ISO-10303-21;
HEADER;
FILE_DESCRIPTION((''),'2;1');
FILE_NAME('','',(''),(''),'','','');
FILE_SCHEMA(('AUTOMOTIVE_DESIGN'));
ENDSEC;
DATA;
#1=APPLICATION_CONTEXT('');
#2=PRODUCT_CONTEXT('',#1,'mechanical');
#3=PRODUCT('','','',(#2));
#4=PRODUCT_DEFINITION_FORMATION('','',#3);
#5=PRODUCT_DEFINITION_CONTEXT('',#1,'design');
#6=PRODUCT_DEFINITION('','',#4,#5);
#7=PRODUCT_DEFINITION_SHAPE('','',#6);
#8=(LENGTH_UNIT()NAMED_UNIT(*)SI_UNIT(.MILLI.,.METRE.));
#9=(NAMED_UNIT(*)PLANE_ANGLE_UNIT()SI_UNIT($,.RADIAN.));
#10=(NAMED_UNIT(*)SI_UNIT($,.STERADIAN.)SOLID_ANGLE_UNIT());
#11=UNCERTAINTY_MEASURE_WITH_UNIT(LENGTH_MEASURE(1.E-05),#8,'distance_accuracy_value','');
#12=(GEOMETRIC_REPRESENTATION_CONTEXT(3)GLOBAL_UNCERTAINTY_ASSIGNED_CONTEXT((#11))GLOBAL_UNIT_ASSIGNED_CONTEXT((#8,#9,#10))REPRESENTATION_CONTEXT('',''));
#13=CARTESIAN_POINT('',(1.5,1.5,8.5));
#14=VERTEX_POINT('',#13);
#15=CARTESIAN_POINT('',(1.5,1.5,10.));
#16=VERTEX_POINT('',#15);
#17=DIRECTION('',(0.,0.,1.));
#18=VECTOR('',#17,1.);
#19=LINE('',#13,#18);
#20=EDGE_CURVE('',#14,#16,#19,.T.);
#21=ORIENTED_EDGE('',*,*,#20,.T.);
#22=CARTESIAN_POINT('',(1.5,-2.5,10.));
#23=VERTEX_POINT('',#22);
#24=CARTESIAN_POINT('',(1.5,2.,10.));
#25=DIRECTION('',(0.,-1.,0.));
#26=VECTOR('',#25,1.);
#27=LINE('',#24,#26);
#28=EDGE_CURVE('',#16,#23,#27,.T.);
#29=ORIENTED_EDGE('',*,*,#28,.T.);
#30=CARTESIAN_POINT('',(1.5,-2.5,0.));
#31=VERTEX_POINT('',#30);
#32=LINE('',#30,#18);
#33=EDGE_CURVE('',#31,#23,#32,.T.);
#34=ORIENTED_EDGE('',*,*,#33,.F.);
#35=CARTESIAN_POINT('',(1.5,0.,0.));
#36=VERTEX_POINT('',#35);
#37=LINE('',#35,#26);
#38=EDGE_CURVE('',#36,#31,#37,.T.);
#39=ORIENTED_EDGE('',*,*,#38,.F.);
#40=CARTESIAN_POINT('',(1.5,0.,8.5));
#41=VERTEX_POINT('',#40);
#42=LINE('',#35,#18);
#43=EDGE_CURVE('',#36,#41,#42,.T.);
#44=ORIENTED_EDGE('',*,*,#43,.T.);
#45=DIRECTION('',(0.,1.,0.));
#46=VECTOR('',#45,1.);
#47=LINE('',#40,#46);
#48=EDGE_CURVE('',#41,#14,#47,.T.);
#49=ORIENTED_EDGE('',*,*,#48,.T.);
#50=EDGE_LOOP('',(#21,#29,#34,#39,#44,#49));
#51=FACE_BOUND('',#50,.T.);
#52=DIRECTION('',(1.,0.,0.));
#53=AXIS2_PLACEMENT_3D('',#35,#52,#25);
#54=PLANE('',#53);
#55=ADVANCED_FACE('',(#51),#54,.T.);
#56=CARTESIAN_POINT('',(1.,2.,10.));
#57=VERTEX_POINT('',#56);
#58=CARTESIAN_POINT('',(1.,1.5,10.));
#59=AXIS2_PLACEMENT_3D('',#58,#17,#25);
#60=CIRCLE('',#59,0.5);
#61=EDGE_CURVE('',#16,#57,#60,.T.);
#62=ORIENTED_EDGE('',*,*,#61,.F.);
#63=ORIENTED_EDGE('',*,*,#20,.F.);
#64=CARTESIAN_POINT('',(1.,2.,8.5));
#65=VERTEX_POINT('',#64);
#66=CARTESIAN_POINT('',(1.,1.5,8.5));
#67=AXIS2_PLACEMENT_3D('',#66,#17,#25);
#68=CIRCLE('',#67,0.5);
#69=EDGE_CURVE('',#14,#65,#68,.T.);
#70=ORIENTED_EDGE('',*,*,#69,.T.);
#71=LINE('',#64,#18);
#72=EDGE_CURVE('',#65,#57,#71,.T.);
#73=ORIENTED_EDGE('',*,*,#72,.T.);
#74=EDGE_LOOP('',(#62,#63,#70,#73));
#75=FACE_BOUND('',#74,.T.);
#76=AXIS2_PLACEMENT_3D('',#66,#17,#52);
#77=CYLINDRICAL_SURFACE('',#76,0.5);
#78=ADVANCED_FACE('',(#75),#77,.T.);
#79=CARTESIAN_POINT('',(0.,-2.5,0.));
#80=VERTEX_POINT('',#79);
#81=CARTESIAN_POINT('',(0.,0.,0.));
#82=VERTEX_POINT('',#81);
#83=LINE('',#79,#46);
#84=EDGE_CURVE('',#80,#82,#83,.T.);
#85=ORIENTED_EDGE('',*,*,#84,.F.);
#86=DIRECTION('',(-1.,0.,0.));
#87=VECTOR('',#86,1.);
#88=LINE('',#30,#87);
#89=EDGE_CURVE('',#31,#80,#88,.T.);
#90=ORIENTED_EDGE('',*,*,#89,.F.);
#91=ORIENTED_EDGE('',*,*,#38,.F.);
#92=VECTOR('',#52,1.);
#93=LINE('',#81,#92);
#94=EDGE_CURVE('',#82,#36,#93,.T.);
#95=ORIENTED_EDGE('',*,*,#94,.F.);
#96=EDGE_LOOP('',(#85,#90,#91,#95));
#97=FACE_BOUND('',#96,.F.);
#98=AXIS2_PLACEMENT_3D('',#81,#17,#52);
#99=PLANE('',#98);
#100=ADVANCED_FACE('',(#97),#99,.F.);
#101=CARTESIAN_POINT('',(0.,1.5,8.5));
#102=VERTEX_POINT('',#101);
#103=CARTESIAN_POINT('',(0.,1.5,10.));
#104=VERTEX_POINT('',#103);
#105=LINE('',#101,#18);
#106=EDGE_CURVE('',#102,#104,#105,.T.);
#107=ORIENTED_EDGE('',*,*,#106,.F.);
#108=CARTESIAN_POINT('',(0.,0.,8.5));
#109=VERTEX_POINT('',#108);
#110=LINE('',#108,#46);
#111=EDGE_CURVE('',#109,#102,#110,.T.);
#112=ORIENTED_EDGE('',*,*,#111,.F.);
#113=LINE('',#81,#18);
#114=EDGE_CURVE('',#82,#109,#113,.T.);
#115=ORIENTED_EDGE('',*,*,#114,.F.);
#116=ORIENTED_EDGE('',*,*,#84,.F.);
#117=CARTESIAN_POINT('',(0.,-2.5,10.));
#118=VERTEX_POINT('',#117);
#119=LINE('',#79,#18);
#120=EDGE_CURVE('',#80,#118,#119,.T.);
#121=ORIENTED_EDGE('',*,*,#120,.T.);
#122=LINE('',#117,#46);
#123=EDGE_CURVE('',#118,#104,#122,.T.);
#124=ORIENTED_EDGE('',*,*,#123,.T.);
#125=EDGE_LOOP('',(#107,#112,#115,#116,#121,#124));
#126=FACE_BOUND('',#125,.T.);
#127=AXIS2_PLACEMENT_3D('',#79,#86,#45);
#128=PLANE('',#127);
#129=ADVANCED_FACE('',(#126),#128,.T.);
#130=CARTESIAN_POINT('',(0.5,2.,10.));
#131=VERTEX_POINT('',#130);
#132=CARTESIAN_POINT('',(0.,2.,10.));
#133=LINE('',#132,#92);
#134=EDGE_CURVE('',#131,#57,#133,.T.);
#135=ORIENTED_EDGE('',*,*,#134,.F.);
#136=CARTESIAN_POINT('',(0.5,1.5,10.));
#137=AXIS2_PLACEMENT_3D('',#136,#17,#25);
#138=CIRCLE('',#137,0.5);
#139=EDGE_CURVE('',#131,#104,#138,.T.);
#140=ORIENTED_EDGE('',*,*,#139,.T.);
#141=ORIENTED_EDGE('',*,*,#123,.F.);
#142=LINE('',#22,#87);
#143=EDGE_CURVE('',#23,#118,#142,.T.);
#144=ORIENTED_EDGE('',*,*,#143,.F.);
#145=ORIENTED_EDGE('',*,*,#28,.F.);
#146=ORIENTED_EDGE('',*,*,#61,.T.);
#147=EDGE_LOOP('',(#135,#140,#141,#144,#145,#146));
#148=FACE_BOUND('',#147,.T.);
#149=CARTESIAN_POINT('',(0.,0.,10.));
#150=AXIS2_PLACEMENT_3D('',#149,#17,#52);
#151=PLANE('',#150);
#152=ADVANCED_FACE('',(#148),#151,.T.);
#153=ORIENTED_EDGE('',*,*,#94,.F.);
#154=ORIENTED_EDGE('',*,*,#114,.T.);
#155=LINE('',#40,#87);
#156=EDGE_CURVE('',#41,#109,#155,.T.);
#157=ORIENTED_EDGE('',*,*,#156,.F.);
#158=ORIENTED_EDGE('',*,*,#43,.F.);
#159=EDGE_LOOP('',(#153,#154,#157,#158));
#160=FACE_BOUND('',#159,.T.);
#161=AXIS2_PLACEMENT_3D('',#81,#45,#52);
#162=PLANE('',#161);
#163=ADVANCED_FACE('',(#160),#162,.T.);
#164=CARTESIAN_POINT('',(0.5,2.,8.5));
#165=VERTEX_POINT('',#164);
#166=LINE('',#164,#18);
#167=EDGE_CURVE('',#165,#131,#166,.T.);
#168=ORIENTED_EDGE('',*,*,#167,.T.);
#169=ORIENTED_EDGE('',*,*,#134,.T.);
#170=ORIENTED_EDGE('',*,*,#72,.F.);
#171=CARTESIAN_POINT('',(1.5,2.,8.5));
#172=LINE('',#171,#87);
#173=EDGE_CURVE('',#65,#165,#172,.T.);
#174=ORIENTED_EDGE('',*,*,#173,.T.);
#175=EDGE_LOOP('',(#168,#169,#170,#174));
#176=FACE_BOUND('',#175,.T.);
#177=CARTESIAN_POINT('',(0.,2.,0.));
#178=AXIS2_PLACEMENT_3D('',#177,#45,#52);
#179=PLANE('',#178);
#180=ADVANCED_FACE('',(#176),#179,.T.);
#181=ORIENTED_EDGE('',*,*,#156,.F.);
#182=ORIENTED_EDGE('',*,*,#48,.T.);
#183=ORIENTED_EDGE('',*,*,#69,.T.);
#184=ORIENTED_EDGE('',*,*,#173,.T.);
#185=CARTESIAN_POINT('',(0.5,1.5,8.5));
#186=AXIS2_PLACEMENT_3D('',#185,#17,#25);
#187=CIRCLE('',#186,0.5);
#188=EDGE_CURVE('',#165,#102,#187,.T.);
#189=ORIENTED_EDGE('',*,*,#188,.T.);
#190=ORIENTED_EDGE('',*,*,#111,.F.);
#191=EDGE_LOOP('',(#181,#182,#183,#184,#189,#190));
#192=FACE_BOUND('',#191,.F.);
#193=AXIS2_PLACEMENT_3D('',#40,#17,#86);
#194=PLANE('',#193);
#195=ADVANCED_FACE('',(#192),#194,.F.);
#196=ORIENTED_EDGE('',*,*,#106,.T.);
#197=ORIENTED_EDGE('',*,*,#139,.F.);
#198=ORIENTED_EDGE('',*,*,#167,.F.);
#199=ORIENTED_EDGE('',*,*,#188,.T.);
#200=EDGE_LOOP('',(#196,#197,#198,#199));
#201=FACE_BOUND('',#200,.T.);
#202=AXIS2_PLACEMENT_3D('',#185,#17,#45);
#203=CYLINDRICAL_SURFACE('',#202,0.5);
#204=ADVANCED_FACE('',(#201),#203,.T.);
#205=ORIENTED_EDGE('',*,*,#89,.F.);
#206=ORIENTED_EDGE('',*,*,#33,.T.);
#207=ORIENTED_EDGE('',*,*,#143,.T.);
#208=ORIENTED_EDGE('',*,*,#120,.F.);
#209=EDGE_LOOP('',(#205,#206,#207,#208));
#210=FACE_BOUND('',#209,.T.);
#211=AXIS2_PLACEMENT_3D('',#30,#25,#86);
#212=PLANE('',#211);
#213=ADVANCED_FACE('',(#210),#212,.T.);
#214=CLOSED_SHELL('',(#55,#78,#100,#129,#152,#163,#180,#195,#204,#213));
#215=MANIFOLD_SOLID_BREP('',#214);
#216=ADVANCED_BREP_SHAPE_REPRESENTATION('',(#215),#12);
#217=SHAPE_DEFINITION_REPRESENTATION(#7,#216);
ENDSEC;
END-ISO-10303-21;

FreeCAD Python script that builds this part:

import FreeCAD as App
import Part
import Sketcher

V = App.Vector


def edges_at(feature, points):
    """Names of the edges that pass closest to the given points."""
    edges = feature.Shape.Edges
    near = lambda p: min(range(len(edges)), key=lambda i: edges[i].distToShape(Part.Vertex(*p))[0])
    return sorted({f"Edge{near(p) + 1}" for p in points})


def add_polygon(sketch, points):
    """Adds a closed chain of lines whose ends are joined by coincident constraints."""
    first, n = sketch.GeometryCount, len(points)
    for a, b in zip(points, points[1:] + points[:1]):
        sketch.addGeometry(Part.LineSegment(App.Vector(*a, 0), App.Vector(*b, 0)), False)
    for i in range(n):
        sketch.addConstraint(Sketcher.Constraint("Coincident", first + i, 2, first + (i + 1) % n, 1))

doc = App.newDocument("Part")
body = doc.addObject("PartDesign::Body", "Body")

sketch1 = doc.addObject("Sketcher::SketchObject", "Sketch")
body.addObject(sketch1)
sketch1.AttachmentSupport = (doc.XY_Plane, [""])
sketch1.MapMode = "FlatFace"
add_polygon(sketch1, [(1.5, 0), (0, 0), (0, -2.5), (1.5, -2.5)])
sketch1.addConstraint(Sketcher.Constraint("Horizontal", 0))
sketch1.addConstraint(Sketcher.Constraint("Vertical", 1))
sketch1.addConstraint(Sketcher.Constraint("Horizontal", 2))
sketch1.addConstraint(Sketcher.Constraint("Vertical", 3))
sketch1.addConstraint(Sketcher.Constraint("Coincident", 0, 2, -1, 1))
sketch1.addConstraint(Sketcher.Constraint("DistanceX", 0, 2, 0, 1, 1.5))
sketch1.addConstraint(Sketcher.Constraint("DistanceY", 1, 2, 1, 1, 2.5))
pad1 = doc.addObject("PartDesign::Pad", "Pad")
body.addObject(pad1)
pad1.Profile = sketch1
pad1.Length = 10

sketch2 = doc.addObject("Sketcher::SketchObject", "Sketch001")
body.addObject(sketch2)
sketch2.AttachmentSupport = (doc.XZ_Plane, [""])
sketch2.MapMode = "FlatFace"
add_polygon(sketch2, [(0, 8.5), (0, 10), (1.5, 10), (1.5, 8.5)])
sketch2.addConstraint(Sketcher.Constraint("Vertical", 0))
sketch2.addConstraint(Sketcher.Constraint("Horizontal", 1))
sketch2.addConstraint(Sketcher.Constraint("Vertical", 2))
sketch2.addConstraint(Sketcher.Constraint("Horizontal", 3))
sketch2.addConstraint(Sketcher.Constraint("PointOnObject", 0, 2, -2))
sketch2.addConstraint(Sketcher.Constraint("Equal", 3, 0))
sketch2.addConstraint(Sketcher.Constraint("DistanceX", 1, 1, 1, 2, 1.5))
sketch2.addConstraint(Sketcher.Constraint("DistanceY", -1, 1, 0, 2, 10.0))
pad2 = doc.addObject("PartDesign::Pad", "Pad001")
body.addObject(pad2)
pad2.Profile = sketch2
pad2.Length = 2
pad2.Reversed = True
doc.recompute()

fillet = doc.addObject("PartDesign::Fillet", "Fillet")
body.addObject(fillet)
fillet.Base = (pad2, edges_at(pad2, [(1.5, 2, 9.25)]))
fillet.Radius = 0.5
doc.recompute()

fillet2 = doc.addObject("PartDesign::Fillet", "Fillet001")
body.addObject(fillet2)
fillet2.Base = (fillet, edges_at(fillet, [(0, 2, 9.25)]))
fillet2.Radius = 0.5

doc.recompute()
